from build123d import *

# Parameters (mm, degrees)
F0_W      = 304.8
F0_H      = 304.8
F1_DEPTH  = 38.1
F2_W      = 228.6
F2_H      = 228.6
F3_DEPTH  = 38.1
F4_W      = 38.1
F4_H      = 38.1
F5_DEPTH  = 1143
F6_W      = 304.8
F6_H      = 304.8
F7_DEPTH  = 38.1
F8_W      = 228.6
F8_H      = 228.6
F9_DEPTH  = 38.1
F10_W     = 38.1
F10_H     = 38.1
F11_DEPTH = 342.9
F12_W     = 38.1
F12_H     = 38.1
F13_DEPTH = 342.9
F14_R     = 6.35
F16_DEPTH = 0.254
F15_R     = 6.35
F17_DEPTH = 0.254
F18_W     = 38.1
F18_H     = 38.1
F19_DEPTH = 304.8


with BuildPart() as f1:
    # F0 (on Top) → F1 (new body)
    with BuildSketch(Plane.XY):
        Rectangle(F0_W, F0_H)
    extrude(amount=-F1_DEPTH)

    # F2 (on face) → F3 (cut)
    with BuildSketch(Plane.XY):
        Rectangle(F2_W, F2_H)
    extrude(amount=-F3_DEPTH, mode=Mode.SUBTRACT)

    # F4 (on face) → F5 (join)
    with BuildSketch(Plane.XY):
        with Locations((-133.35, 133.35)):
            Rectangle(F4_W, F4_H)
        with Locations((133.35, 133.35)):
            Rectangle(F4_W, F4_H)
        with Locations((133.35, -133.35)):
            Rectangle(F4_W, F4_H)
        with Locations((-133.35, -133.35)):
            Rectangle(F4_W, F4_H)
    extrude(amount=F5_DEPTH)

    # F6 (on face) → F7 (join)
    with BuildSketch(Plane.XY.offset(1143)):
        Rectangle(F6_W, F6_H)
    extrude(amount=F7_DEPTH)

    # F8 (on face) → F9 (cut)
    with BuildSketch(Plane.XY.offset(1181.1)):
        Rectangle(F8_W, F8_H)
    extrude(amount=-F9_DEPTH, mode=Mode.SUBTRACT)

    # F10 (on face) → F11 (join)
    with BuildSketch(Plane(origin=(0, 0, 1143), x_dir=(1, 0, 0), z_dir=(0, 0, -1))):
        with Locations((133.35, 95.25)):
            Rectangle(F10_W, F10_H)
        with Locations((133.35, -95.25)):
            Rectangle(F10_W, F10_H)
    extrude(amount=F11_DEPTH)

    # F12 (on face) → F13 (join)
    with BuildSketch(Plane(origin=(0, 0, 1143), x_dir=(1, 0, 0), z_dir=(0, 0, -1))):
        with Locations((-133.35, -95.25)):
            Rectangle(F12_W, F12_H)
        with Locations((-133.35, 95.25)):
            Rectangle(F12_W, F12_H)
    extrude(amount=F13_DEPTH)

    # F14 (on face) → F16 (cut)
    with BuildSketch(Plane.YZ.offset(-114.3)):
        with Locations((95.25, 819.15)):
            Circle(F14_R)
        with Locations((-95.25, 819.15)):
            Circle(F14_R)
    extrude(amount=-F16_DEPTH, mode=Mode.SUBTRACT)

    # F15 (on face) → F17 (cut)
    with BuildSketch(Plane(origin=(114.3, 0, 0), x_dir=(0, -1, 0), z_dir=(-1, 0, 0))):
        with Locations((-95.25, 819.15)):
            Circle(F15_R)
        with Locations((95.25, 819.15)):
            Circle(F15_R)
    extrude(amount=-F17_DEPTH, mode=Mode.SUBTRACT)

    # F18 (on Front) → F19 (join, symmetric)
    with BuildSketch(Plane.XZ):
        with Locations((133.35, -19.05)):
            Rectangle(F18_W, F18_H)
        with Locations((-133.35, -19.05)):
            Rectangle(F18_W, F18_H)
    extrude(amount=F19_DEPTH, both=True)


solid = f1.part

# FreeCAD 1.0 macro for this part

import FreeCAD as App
import Part
import Sketcher

V = App.Vector
Q = App.Units.Quantity

doc = App.newDocument("Part")
params = doc.addObject("Spreadsheet::Sheet", "Params")
for row, (alias, value) in enumerate([
    ("sketch1_width", "12 in"),
    ("pad1_length", "1.5 in"),
    ("sketch2_width", "9 in"),
    ("pocket1_length", "1.5 in"),
    ("sketch3_width", "1.5 in"),
    ("pad2_length", "45 in"),
    ("sketch4_width", "12 in"),
    ("pad3_length", "1.5 in"),
    ("sketch5_width", "9 in"),
    ("pocket2_length", "1.5 in"),
    ("sketch6_width", "1.5 in"),
    ("pad4_length", "13.5 in"),
    ("sketch7_width", "1.5 in"),
    ("pad5_length", "13.5 in"),
    ("sketch8_diameter", "0.5 in"),
    ("pocket3_length", "0.01 in"),
    ("sketch9_diameter", "0.5 in"),
    ("pocket4_length", "0.01 in"),
    ("sketch10_width", "1.5 in"),
    ("pad6_length", "24 in"),
], start=1):
    params.set(f"A{row}", alias)
    params.set(f"B{row}", "=" + value)
    params.setAlias(f"B{row}", alias)

body = doc.addObject("PartDesign::Body", "Body")

# Sketch on XY plane
sketch1 = body.newObject("Sketcher::SketchObject", "Sketch")
sketch1.AttachmentSupport = (doc.getObject("XY_Plane"), [""])
sketch1.MapMode = "FlatFace"
sketch1.addGeometry(Part.LineSegment(V(-152.4, 152.4, 0), V(-152.4, -152.4, 0)), False)
sketch1.addGeometry(Part.LineSegment(V(-152.4, -152.4, 0), V(152.4, -152.4, 0)), False)
sketch1.addGeometry(Part.LineSegment(V(152.4, -152.4, 0), V(152.4, 152.4, 0)), False)
sketch1.addGeometry(Part.LineSegment(V(152.4, 152.4, 0), V(-152.4, 152.4, 0)), False)
sketch1.addConstraint(Sketcher.Constraint("Coincident", 0, 2, 1, 1))
sketch1.addConstraint(Sketcher.Constraint("Coincident", 1, 2, 2, 1))
sketch1.addConstraint(Sketcher.Constraint("Coincident", 2, 2, 3, 1))
sketch1.addConstraint(Sketcher.Constraint("Coincident", 3, 2, 0, 1))
sketch1.addConstraint(Sketcher.Constraint("Vertical", 0))
sketch1.addConstraint(Sketcher.Constraint("Horizontal", 1))
sketch1.addConstraint(Sketcher.Constraint("Vertical", 2))
sketch1.addConstraint(Sketcher.Constraint("Horizontal", 3))
sketch1.addConstraint(Sketcher.Constraint("Symmetric", 0, 2, 2, 2, -1, 1))
sketch1.addConstraint(Sketcher.Constraint("Equal", 3, 0))
sketch1.addConstraint(Sketcher.Constraint("DistanceX", 1, 1, 1, 2, Q("12 in")))
sketch1.setExpression("Constraints[10]", "Params.sketch1_width")
pad1 = body.newObject("PartDesign::Pad", "Pad")
pad1.Profile = sketch1
pad1.setExpression("Length", "Params.pad1_length")
pad1.Reversed = True

# Sketch on XY plane
sketch2 = body.newObject("Sketcher::SketchObject", "Sketch001")
sketch2.AttachmentSupport = (doc.getObject("XY_Plane"), [""])
sketch2.MapMode = "FlatFace"
sketch2.addGeometry(Part.LineSegment(V(-114.3, 114.3, 0), V(-114.3, -114.3, 0)), False)
sketch2.addGeometry(Part.LineSegment(V(-114.3, -114.3, 0), V(114.3, -114.3, 0)), False)
sketch2.addGeometry(Part.LineSegment(V(114.3, -114.3, 0), V(114.3, 114.3, 0)), False)
sketch2.addGeometry(Part.LineSegment(V(114.3, 114.3, 0), V(-114.3, 114.3, 0)), False)
sketch2.addConstraint(Sketcher.Constraint("Coincident", 0, 2, 1, 1))
sketch2.addConstraint(Sketcher.Constraint("Coincident", 1, 2, 2, 1))
sketch2.addConstraint(Sketcher.Constraint("Coincident", 2, 2, 3, 1))
sketch2.addConstraint(Sketcher.Constraint("Coincident", 3, 2, 0, 1))
sketch2.addConstraint(Sketcher.Constraint("Vertical", 0))
sketch2.addConstraint(Sketcher.Constraint("Horizontal", 1))
sketch2.addConstraint(Sketcher.Constraint("Vertical", 2))
sketch2.addConstraint(Sketcher.Constraint("Horizontal", 3))
sketch2.addConstraint(Sketcher.Constraint("Symmetric", 0, 2, 2, 2, -1, 1))
sketch2.addConstraint(Sketcher.Constraint("Equal", 3, 0))
sketch2.addConstraint(Sketcher.Constraint("DistanceX", 1, 1, 1, 2, Q("9 in")))
sketch2.setExpression("Constraints[10]", "Params.sketch2_width")
pocket1 = body.newObject("PartDesign::Pocket", "Pocket")
pocket1.Profile = sketch2
pocket1.setExpression("Length", "Params.pocket1_length")

# Sketch on XY plane
sketch3 = body.newObject("Sketcher::SketchObject", "Sketch002")
sketch3.AttachmentSupport = (doc.getObject("XY_Plane"), [""])
sketch3.MapMode = "FlatFace"
sketch3.addGeometry(Part.LineSegment(V(-152.4, 152.4, 0), V(-152.4, 114.3, 0)), False)
sketch3.addGeometry(Part.LineSegment(V(-152.4, 114.3, 0), V(-114.3, 114.3, 0)), False)
sketch3.addGeometry(Part.LineSegment(V(-114.3, 114.3, 0), V(-114.3, 152.4, 0)), False)
sketch3.addGeometry(Part.LineSegment(V(-114.3, 152.4, 0), V(-152.4, 152.4, 0)), False)
sketch3.addGeometry(Part.LineSegment(V(114.3, 152.4, 0), V(114.3, 114.3, 0)), False)
sketch3.addGeometry(Part.LineSegment(V(114.3, 114.3, 0), V(152.4, 114.3, 0)), False)
sketch3.addGeometry(Part.LineSegment(V(152.4, 114.3, 0), V(152.4, 152.4, 0)), False)
sketch3.addGeometry(Part.LineSegment(V(152.4, 152.4, 0), V(114.3, 152.4, 0)), False)
sketch3.addGeometry(Part.LineSegment(V(114.3, -114.3, 0), V(114.3, -152.4, 0)), False)
sketch3.addGeometry(Part.LineSegment(V(114.3, -152.4, 0), V(152.4, -152.4, 0)), False)
sketch3.addGeometry(Part.LineSegment(V(152.4, -152.4, 0), V(152.4, -114.3, 0)), False)
sketch3.addGeometry(Part.LineSegment(V(152.4, -114.3, 0), V(114.3, -114.3, 0)), False)
sketch3.addGeometry(Part.LineSegment(V(-152.4, -114.3, 0), V(-152.4, -152.4, 0)), False)
sketch3.addGeometry(Part.LineSegment(V(-152.4, -152.4, 0), V(-114.3, -152.4, 0)), False)
sketch3.addGeometry(Part.LineSegment(V(-114.3, -152.4, 0), V(-114.3, -114.3, 0)), False)
sketch3.addGeometry(Part.LineSegment(V(-114.3, -114.3, 0), V(-152.4, -114.3, 0)), False)
sketch3.addConstraint(Sketcher.Constraint("Coincident", 0, 2, 1, 1))
sketch3.addConstraint(Sketcher.Constraint("Coincident", 1, 2, 2, 1))
sketch3.addConstraint(Sketcher.Constraint("Coincident", 2, 2, 3, 1))
sketch3.addConstraint(Sketcher.Constraint("Coincident", 3, 2, 0, 1))
sketch3.addConstraint(Sketcher.Constraint("Coincident", 4, 2, 5, 1))
sketch3.addConstraint(Sketcher.Constraint("Coincident", 5, 2, 6, 1))
sketch3.addConstraint(Sketcher.Constraint("Coincident", 6, 2, 7, 1))
sketch3.addConstraint(Sketcher.Constraint("Coincident", 7, 2, 4, 1))
sketch3.addConstraint(Sketcher.Constraint("Coincident", 8, 2, 9, 1))
sketch3.addConstraint(Sketcher.Constraint("Coincident", 9, 2, 10, 1))
sketch3.addConstraint(Sketcher.Constraint("Coincident", 10, 2, 11, 1))
sketch3.addConstraint(Sketcher.Constraint("Coincident", 11, 2, 8, 1))
sketch3.addConstraint(Sketcher.Constraint("Coincident", 12, 2, 13, 1))
sketch3.addConstraint(Sketcher.Constraint("Coincident", 13, 2, 14, 1))
sketch3.addConstraint(Sketcher.Constraint("Coincident", 14, 2, 15, 1))
sketch3.addConstraint(Sketcher.Constraint("Coincident", 15, 2, 12, 1))
sketch3.addConstraint(Sketcher.Constraint("Vertical", 0))
sketch3.addConstraint(Sketcher.Constraint("Horizontal", 1))
sketch3.addConstraint(Sketcher.Constraint("Vertical", 2))
sketch3.addConstraint(Sketcher.Constraint("Horizontal", 3))
sketch3.addConstraint(Sketcher.Constraint("Vertical", 4))
sketch3.addConstraint(Sketcher.Constraint("Horizontal", 5))
sketch3.addConstraint(Sketcher.Constraint("Vertical", 6))
sketch3.addConstraint(Sketcher.Constraint("Horizontal", 7))
sketch3.addConstraint(Sketcher.Constraint("Vertical", 8))
sketch3.addConstraint(Sketcher.Constraint("Horizontal", 9))
sketch3.addConstraint(Sketcher.Constraint("Vertical", 10))
sketch3.addConstraint(Sketcher.Constraint("Horizontal", 11))
sketch3.addConstraint(Sketcher.Constraint("Vertical", 12))
sketch3.addConstraint(Sketcher.Constraint("Horizontal", 13))
sketch3.addConstraint(Sketcher.Constraint("Vertical", 14))
sketch3.addConstraint(Sketcher.Constraint("Horizontal", 15))
sketch3.addConstraint(Sketcher.Constraint("Symmetric", 2, 2, 8, 2, -1, 1))
sketch3.addConstraint(Sketcher.Constraint("Symmetric", 0, 2, 10, 2, -1, 1))
sketch3.addConstraint(Sketcher.Constraint("Symmetric", 6, 2, 12, 2, -1, 1))
sketch3.addConstraint(Sketcher.Constraint("Symmetric", 4, 2, 14, 2, -1, 1))
sketch3.addConstraint(Sketcher.Constraint("Symmetric", 1, 2, 4, 2, -2))
sketch3.addConstraint(Sketcher.Constraint("Symmetric", 3, 2, 6, 2, -2))
sketch3.addConstraint(Sketcher.Constraint("Equal", 15, 0))
sketch3.addConstraint(Sketcher.Constraint("DistanceX", 1, 1, 1, 2, Q("1.5 in")))
sketch3.addConstraint(Sketcher.Constraint("DistanceX", 0, 2, -1, 1, Q("6 in")))
sketch3.addConstraint(Sketcher.Constraint("DistanceY", -1, 1, 2, 2, Q("6 in")))
sketch3.setExpression("Constraints[39]", "Params.sketch3_width")
pad2 = body.newObject("PartDesign::Pad", "Pad001")
pad2.Profile = sketch3
pad2.setExpression("Length", "Params.pad2_length")

# Sketch on XY plane
sketch4 = body.newObject("Sketcher::SketchObject", "Sketch003")
sketch4.AttachmentSupport = (doc.getObject("XY_Plane"), [""])
sketch4.MapMode = "FlatFace"
sketch4.AttachmentOffset = App.Placement(V(0, 0, 45 * 25.4), App.Rotation())
sketch4.addGeometry(Part.LineSegment(V(-152.4, 152.4, 0), V(-152.4, -152.4, 0)), False)
sketch4.addGeometry(Part.LineSegment(V(-152.4, -152.4, 0), V(152.4, -152.4, 0)), False)
sketch4.addGeometry(Part.LineSegment(V(152.4, -152.4, 0), V(152.4, 152.4, 0)), False)
sketch4.addGeometry(Part.LineSegment(V(152.4, 152.4, 0), V(-152.4, 152.4, 0)), False)
sketch4.addConstraint(Sketcher.Constraint("Coincident", 0, 2, 1, 1))
sketch4.addConstraint(Sketcher.Constraint("Coincident", 1, 2, 2, 1))
sketch4.addConstraint(Sketcher.Constraint("Coincident", 2, 2, 3, 1))
sketch4.addConstraint(Sketcher.Constraint("Coincident", 3, 2, 0, 1))
sketch4.addConstraint(Sketcher.Constraint("Vertical", 0))
sketch4.addConstraint(Sketcher.Constraint("Horizontal", 1))
sketch4.addConstraint(Sketcher.Constraint("Vertical", 2))
sketch4.addConstraint(Sketcher.Constraint("Horizontal", 3))
sketch4.addConstraint(Sketcher.Constraint("Symmetric", 0, 2, 2, 2, -1, 1))
sketch4.addConstraint(Sketcher.Constraint("Equal", 3, 0))
sketch4.addConstraint(Sketcher.Constraint("DistanceX", 1, 1, 1, 2, Q("12 in")))
sketch4.setExpression("Constraints[10]", "Params.sketch4_width")
pad3 = body.newObject("PartDesign::Pad", "Pad002")
pad3.Profile = sketch4
pad3.setExpression("Length", "Params.pad3_length")

# Sketch on XY plane
sketch5 = body.newObject("Sketcher::SketchObject", "Sketch004")
sketch5.AttachmentSupport = (doc.getObject("XY_Plane"), [""])
sketch5.MapMode = "FlatFace"
sketch5.AttachmentOffset = App.Placement(V(0, 0, 46.5 * 25.4), App.Rotation())
sketch5.addGeometry(Part.LineSegment(V(-114.3, 114.3, 0), V(-114.3, -114.3, 0)), False)
sketch5.addGeometry(Part.LineSegment(V(-114.3, -114.3, 0), V(114.3, -114.3, 0)), False)
sketch5.addGeometry(Part.LineSegment(V(114.3, -114.3, 0), V(114.3, 114.3, 0)), False)
sketch5.addGeometry(Part.LineSegment(V(114.3, 114.3, 0), V(-114.3, 114.3, 0)), False)
sketch5.addConstraint(Sketcher.Constraint("Coincident", 0, 2, 1, 1))
sketch5.addConstraint(Sketcher.Constraint("Coincident", 1, 2, 2, 1))
sketch5.addConstraint(Sketcher.Constraint("Coincident", 2, 2, 3, 1))
sketch5.addConstraint(Sketcher.Constraint("Coincident", 3, 2, 0, 1))
sketch5.addConstraint(Sketcher.Constraint("Vertical", 0))
sketch5.addConstraint(Sketcher.Constraint("Horizontal", 1))
sketch5.addConstraint(Sketcher.Constraint("Vertical", 2))
sketch5.addConstraint(Sketcher.Constraint("Horizontal", 3))
sketch5.addConstraint(Sketcher.Constraint("Symmetric", 0, 2, 2, 2, -1, 1))
sketch5.addConstraint(Sketcher.Constraint("Equal", 3, 0))
sketch5.addConstraint(Sketcher.Constraint("DistanceX", 1, 1, 1, 2, Q("9 in")))
sketch5.setExpression("Constraints[10]", "Params.sketch5_width")
pocket2 = body.newObject("PartDesign::Pocket", "Pocket001")
pocket2.Profile = sketch5
pocket2.setExpression("Length", "Params.pocket2_length")

# Sketch on XY plane
sketch6 = body.newObject("Sketcher::SketchObject", "Sketch005")
sketch6.AttachmentSupport = (doc.getObject("XY_Plane"), [""])
sketch6.MapMode = "FlatFace"
sketch6.AttachmentOffset = App.Placement(V(0, 0, 45 * 25.4), App.Rotation())
sketch6.addGeometry(Part.LineSegment(V(114.3, -114.3, 0), V(114.3, -76.2, 0)), False)
sketch6.addGeometry(Part.LineSegment(V(114.3, -76.2, 0), V(152.4, -76.2, 0)), False)
sketch6.addGeometry(Part.LineSegment(V(152.4, -76.2, 0), V(152.4, -114.3, 0)), False)
sketch6.addGeometry(Part.LineSegment(V(152.4, -114.3, 0), V(114.3, -114.3, 0)), False)
sketch6.addGeometry(Part.LineSegment(V(114.3, 76.2, 0), V(114.3, 114.3, 0)), False)
sketch6.addGeometry(Part.LineSegment(V(114.3, 114.3, 0), V(152.4, 114.3, 0)), False)
sketch6.addGeometry(Part.LineSegment(V(152.4, 114.3, 0), V(152.4, 76.2, 0)), False)
sketch6.addGeometry(Part.LineSegment(V(152.4, 76.2, 0), V(114.3, 76.2, 0)), False)
sketch6.addConstraint(Sketcher.Constraint("Coincident", 0, 2, 1, 1))
sketch6.addConstraint(Sketcher.Constraint("Coincident", 1, 2, 2, 1))
sketch6.addConstraint(Sketcher.Constraint("Coincident", 2, 2, 3, 1))
sketch6.addConstraint(Sketcher.Constraint("Coincident", 3, 2, 0, 1))
sketch6.addConstraint(Sketcher.Constraint("Coincident", 4, 2, 5, 1))
sketch6.addConstraint(Sketcher.Constraint("Coincident", 5, 2, 6, 1))
sketch6.addConstraint(Sketcher.Constraint("Coincident", 6, 2, 7, 1))
sketch6.addConstraint(Sketcher.Constraint("Coincident", 7, 2, 4, 1))
sketch6.addConstraint(Sketcher.Constraint("Vertical", 0))
sketch6.addConstraint(Sketcher.Constraint("Horizontal", 1))
sketch6.addConstraint(Sketcher.Constraint("Vertical", 2))
sketch6.addConstraint(Sketcher.Constraint("Horizontal", 3))
sketch6.addConstraint(Sketcher.Constraint("Vertical", 4))
sketch6.addConstraint(Sketcher.Constraint("Horizontal", 5))
sketch6.addConstraint(Sketcher.Constraint("Vertical", 6))
sketch6.addConstraint(Sketcher.Constraint("Horizontal", 7))
sketch6.addConstraint(Sketcher.Constraint("Symmetric", 3, 2, 4, 2, -1))
sketch6.addConstraint(Sketcher.Constraint("Symmetric", 1, 2, 6, 2, -1))
sketch6.addConstraint(Sketcher.Constraint("Equal", 7, 0))
sketch6.addConstraint(Sketcher.Constraint("DistanceX", 1, 1, 1, 2, Q("1.5 in")))
sketch6.addConstraint(Sketcher.Constraint("DistanceY", 0, 2, -1, 1, Q("3 in")))
sketch6.addConstraint(Sketcher.Constraint("DistanceX", -1, 1, 1, 2, Q("6 in")))
sketch6.setExpression("Constraints[19]", "Params.sketch6_width")
pad4 = body.newObject("PartDesign::Pad", "Pad003")
pad4.Profile = sketch6
pad4.setExpression("Length", "Params.pad4_length")
pad4.Reversed = True

# Sketch on XY plane
sketch7 = body.newObject("Sketcher::SketchObject", "Sketch006")
sketch7.AttachmentSupport = (doc.getObject("XY_Plane"), [""])
sketch7.MapMode = "FlatFace"
sketch7.AttachmentOffset = App.Placement(V(0, 0, 45 * 25.4), App.Rotation())
sketch7.addGeometry(Part.LineSegment(V(-152.4, 76.2, 0), V(-152.4, 114.3, 0)), False)
sketch7.addGeometry(Part.LineSegment(V(-152.4, 114.3, 0), V(-114.3, 114.3, 0)), False)
sketch7.addGeometry(Part.LineSegment(V(-114.3, 114.3, 0), V(-114.3, 76.2, 0)), False)
sketch7.addGeometry(Part.LineSegment(V(-114.3, 76.2, 0), V(-152.4, 76.2, 0)), False)
sketch7.addGeometry(Part.LineSegment(V(-152.4, -114.3, 0), V(-152.4, -76.2, 0)), False)
sketch7.addGeometry(Part.LineSegment(V(-152.4, -76.2, 0), V(-114.3, -76.2, 0)), False)
sketch7.addGeometry(Part.LineSegment(V(-114.3, -76.2, 0), V(-114.3, -114.3, 0)), False)
sketch7.addGeometry(Part.LineSegment(V(-114.3, -114.3, 0), V(-152.4, -114.3, 0)), False)
sketch7.addConstraint(Sketcher.Constraint("Coincident", 0, 2, 1, 1))
sketch7.addConstraint(Sketcher.Constraint("Coincident", 1, 2, 2, 1))
sketch7.addConstraint(Sketcher.Constraint("Coincident", 2, 2, 3, 1))
sketch7.addConstraint(Sketcher.Constraint("Coincident", 3, 2, 0, 1))
sketch7.addConstraint(Sketcher.Constraint("Coincident", 4, 2, 5, 1))
sketch7.addConstraint(Sketcher.Constraint("Coincident", 5, 2, 6, 1))
sketch7.addConstraint(Sketcher.Constraint("Coincident", 6, 2, 7, 1))
sketch7.addConstraint(Sketcher.Constraint("Coincident", 7, 2, 4, 1))
sketch7.addConstraint(Sketcher.Constraint("Vertical", 0))
sketch7.addConstraint(Sketcher.Constraint("Horizontal", 1))
sketch7.addConstraint(Sketcher.Constraint("Vertical", 2))
sketch7.addConstraint(Sketcher.Constraint("Horizontal", 3))
sketch7.addConstraint(Sketcher.Constraint("Vertical", 4))
sketch7.addConstraint(Sketcher.Constraint("Horizontal", 5))
sketch7.addConstraint(Sketcher.Constraint("Vertical", 6))
sketch7.addConstraint(Sketcher.Constraint("Horizontal", 7))
sketch7.addConstraint(Sketcher.Constraint("Symmetric", 3, 2, 4, 2, -1))
sketch7.addConstraint(Sketcher.Constraint("Symmetric", 1, 2, 6, 2, -1))
sketch7.addConstraint(Sketcher.Constraint("Equal", 7, 0))
sketch7.addConstraint(Sketcher.Constraint("DistanceX", 1, 1, 1, 2, Q("1.5 in")))
sketch7.addConstraint(Sketcher.Constraint("DistanceX", 0, 2, -1, 1, Q("6 in")))
sketch7.addConstraint(Sketcher.Constraint("DistanceY", -1, 1, 2, 2, Q("3 in")))
sketch7.setExpression("Constraints[19]", "Params.sketch7_width")
pad5 = body.newObject("PartDesign::Pad", "Pad004")
pad5.Profile = sketch7
pad5.setExpression("Length", "Params.pad5_length")
pad5.Reversed = True

# Sketch on YZ plane
sketch8 = body.newObject("Sketcher::SketchObject", "Sketch007")
sketch8.AttachmentSupport = (doc.getObject("YZ_Plane"), [""])
sketch8.MapMode = "FlatFace"
sketch8.AttachmentOffset = App.Placement(V(0, 0, -4.5 * 25.4), App.Rotation())
sketch8.addGeometry(Part.Circle(V(95.25, 819.15, 0), V(0, 0, 1), 6.35), False)
sketch8.addGeometry(Part.Circle(V(-95.25, 819.15, 0), V(0, 0, 1), 6.35), False)
sketch8.addConstraint(Sketcher.Constraint("Equal", 0, 1))
sketch8.addConstraint(Sketcher.Constraint("Symmetric", 0, 3, 1, 3, -2))
sketch8.addConstraint(Sketcher.Constraint("Diameter", 0, Q("0.5 in")))
sketch8.addConstraint(Sketcher.Constraint("DistanceX", 1, 3, 0, 3, Q("7.5 in")))
sketch8.addConstraint(Sketcher.Constraint("DistanceY", -1, 1, 0, 3, Q("32.25 in")))
sketch8.setExpression("Constraints[2]", "Params.sketch8_diameter")
pocket3 = body.newObject("PartDesign::Pocket", "Pocket002")
pocket3.Profile = sketch8
pocket3.setExpression("Length", "Params.pocket3_length")

# Sketch on YZ plane
sketch9 = body.newObject("Sketcher::SketchObject", "Sketch008")
sketch9.AttachmentSupport = (doc.getObject("YZ_Plane"), [""])
sketch9.MapMode = "FlatFace"
sketch9.AttachmentOffset = App.Placement(V(0, 0, 4.5 * 25.4), App.Rotation())
sketch9.addGeometry(Part.Circle(V(95.25, 819.15, 0), V(0, 0, 1), 6.35), False)
sketch9.addGeometry(Part.Circle(V(-95.25, 819.15, 0), V(0, 0, 1), 6.35), False)
sketch9.addConstraint(Sketcher.Constraint("Equal", 0, 1))
sketch9.addConstraint(Sketcher.Constraint("Symmetric", 0, 3, 1, 3, -2))
sketch9.addConstraint(Sketcher.Constraint("Diameter", 0, Q("0.5 in")))
sketch9.addConstraint(Sketcher.Constraint("DistanceX", 1, 3, 0, 3, Q("7.5 in")))
sketch9.addConstraint(Sketcher.Constraint("DistanceY", -1, 1, 0, 3, Q("32.25 in")))
sketch9.setExpression("Constraints[2]", "Params.sketch9_diameter")
pocket4 = body.newObject("PartDesign::Pocket", "Pocket003")
pocket4.Profile = sketch9
pocket4.setExpression("Length", "Params.pocket4_length")
pocket4.Reversed = True

# Sketch on XZ plane
sketch10 = body.newObject("Sketcher::SketchObject", "Sketch009")
sketch10.AttachmentSupport = (doc.getObject("XZ_Plane"), [""])
sketch10.MapMode = "FlatFace"
sketch10.addGeometry(Part.LineSegment(V(114.3, 0, 0), V(114.3, -38.1, 0)), False)
sketch10.addGeometry(Part.LineSegment(V(114.3, -38.1, 0), V(152.4, -38.1, 0)), False)
sketch10.addGeometry(Part.LineSegment(V(152.4, -38.1, 0), V(152.4, 0, 0)), False)
sketch10.addGeometry(Part.LineSegment(V(152.4, 0, 0), V(114.3, 0, 0)), False)
sketch10.addGeometry(Part.LineSegment(V(-152.4, 0, 0), V(-152.4, -38.1, 0)), False)
sketch10.addGeometry(Part.LineSegment(V(-152.4, -38.1, 0), V(-114.3, -38.1, 0)), False)
sketch10.addGeometry(Part.LineSegment(V(-114.3, -38.1, 0), V(-114.3, 0, 0)), False)
sketch10.addGeometry(Part.LineSegment(V(-114.3, 0, 0), V(-152.4, 0, 0)), False)
sketch10.addConstraint(Sketcher.Constraint("Coincident", 0, 2, 1, 1))
sketch10.addConstraint(Sketcher.Constraint("Coincident", 1, 2, 2, 1))
sketch10.addConstraint(Sketcher.Constraint("Coincident", 2, 2, 3, 1))
sketch10.addConstraint(Sketcher.Constraint("Coincident", 3, 2, 0, 1))
sketch10.addConstraint(Sketcher.Constraint("Coincident", 4, 2, 5, 1))
sketch10.addConstraint(Sketcher.Constraint("Coincident", 5, 2, 6, 1))
sketch10.addConstraint(Sketcher.Constraint("Coincident", 6, 2, 7, 1))
sketch10.addConstraint(Sketcher.Constraint("Coincident", 7, 2, 4, 1))
sketch10.addConstraint(Sketcher.Constraint("Vertical", 0))
sketch10.addConstraint(Sketcher.Constraint("Horizontal", 1))
sketch10.addConstraint(Sketcher.Constraint("Vertical", 2))
sketch10.addConstraint(Sketcher.Constraint("Horizontal", 3))
sketch10.addConstraint(Sketcher.Constraint("Vertical", 4))
sketch10.addConstraint(Sketcher.Constraint("Horizontal", 5))
sketch10.addConstraint(Sketcher.Constraint("Vertical", 6))
sketch10.addConstraint(Sketcher.Constraint("Horizontal", 7))
sketch10.addConstraint(Sketcher.Constraint("Symmetric", 3, 2, 6, 2, -1, 1))
sketch10.addConstraint(Sketcher.Constraint("Symmetric", 1, 2, 4, 2, -2))
sketch10.addConstraint(Sketcher.Constraint("PointOnObject", 2, 2, -1))
sketch10.addConstraint(Sketcher.Constraint("Equal", 7, 0))
sketch10.addConstraint(Sketcher.Constraint("DistanceX", 1, 1, 1, 2, Q("1.5 in")))
sketch10.addConstraint(Sketcher.Constraint("DistanceX", -1, 1, 1, 2, Q("6 in")))
sketch10.setExpression("Constraints[20]", "Params.sketch10_width")
pad6 = body.newObject("PartDesign::Pad", "Pad005")
pad6.Profile = sketch10
pad6.setExpression("Length", "Params.pad6_length")
pad6.Midplane = True

doc.recompute()
